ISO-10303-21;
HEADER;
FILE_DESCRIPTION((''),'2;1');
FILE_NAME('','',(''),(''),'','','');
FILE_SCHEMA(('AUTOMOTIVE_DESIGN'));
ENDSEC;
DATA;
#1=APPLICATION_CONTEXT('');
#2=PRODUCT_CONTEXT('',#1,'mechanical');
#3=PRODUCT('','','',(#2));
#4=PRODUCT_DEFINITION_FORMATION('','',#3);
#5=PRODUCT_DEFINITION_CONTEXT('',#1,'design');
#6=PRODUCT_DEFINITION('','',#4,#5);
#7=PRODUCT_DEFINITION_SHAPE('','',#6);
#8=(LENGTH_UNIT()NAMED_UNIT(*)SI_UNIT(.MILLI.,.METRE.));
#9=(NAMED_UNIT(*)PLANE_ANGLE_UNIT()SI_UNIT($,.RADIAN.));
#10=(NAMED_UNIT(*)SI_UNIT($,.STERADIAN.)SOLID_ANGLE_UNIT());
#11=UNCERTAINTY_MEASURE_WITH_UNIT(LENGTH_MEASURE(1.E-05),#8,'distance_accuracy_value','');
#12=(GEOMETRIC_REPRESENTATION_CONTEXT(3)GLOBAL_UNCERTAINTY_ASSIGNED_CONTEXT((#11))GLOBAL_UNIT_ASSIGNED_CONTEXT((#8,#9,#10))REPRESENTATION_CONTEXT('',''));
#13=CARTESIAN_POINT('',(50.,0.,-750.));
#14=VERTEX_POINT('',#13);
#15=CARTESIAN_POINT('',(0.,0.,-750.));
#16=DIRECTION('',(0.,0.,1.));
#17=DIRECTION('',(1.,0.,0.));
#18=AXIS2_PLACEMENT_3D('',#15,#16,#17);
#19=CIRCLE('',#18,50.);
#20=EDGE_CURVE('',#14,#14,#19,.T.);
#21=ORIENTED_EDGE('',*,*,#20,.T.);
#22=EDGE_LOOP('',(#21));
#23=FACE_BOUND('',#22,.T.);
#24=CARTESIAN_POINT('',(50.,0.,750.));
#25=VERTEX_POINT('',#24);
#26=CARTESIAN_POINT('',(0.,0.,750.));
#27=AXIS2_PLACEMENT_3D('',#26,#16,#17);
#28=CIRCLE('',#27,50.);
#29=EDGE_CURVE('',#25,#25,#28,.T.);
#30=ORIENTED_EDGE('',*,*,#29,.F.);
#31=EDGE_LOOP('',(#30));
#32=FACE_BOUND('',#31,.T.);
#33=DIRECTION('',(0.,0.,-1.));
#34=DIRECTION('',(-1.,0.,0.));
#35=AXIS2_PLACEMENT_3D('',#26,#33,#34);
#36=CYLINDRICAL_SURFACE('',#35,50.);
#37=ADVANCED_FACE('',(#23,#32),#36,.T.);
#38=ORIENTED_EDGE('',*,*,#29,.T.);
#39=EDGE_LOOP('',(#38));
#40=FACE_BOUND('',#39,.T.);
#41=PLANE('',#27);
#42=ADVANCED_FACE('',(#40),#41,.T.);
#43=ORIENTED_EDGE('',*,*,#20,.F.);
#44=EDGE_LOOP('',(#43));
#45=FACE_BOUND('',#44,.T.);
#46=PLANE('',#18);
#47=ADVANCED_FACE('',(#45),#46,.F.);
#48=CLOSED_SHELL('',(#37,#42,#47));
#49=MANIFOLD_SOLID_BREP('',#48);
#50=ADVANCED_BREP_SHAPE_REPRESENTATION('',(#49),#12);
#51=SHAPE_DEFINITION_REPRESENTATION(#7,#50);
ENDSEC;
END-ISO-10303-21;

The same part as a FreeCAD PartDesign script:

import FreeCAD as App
import Part
import Sketcher
Q = App.Units.Quantity

doc = App.newDocument("Part")
body = doc.addObject("PartDesign::Body", "Body")

# Sketch on XY plane
sketch1 = body.newObject("Sketcher::SketchObject", "Sketch")
sketch1.AttachmentSupport = (doc.getObject("XY_Plane"), [""])
sketch1.MapMode = "FlatFace"
sketch1.addGeometry(Part.Circle(App.Vector(0, 0, 0), App.Vector(0, 0, 1), 50), False)
sketch1.addConstraint(Sketcher.Constraint("Coincident", 0, 3, -1, 1))
sketch1.addConstraint(Sketcher.Constraint("Diameter", 0, Q("100 mm")))
pad1 = body.newObject("PartDesign::Pad", "Pad")
pad1.Profile = sketch1
pad1.Length = 1500
pad1.Midplane = True

doc.recompute()
